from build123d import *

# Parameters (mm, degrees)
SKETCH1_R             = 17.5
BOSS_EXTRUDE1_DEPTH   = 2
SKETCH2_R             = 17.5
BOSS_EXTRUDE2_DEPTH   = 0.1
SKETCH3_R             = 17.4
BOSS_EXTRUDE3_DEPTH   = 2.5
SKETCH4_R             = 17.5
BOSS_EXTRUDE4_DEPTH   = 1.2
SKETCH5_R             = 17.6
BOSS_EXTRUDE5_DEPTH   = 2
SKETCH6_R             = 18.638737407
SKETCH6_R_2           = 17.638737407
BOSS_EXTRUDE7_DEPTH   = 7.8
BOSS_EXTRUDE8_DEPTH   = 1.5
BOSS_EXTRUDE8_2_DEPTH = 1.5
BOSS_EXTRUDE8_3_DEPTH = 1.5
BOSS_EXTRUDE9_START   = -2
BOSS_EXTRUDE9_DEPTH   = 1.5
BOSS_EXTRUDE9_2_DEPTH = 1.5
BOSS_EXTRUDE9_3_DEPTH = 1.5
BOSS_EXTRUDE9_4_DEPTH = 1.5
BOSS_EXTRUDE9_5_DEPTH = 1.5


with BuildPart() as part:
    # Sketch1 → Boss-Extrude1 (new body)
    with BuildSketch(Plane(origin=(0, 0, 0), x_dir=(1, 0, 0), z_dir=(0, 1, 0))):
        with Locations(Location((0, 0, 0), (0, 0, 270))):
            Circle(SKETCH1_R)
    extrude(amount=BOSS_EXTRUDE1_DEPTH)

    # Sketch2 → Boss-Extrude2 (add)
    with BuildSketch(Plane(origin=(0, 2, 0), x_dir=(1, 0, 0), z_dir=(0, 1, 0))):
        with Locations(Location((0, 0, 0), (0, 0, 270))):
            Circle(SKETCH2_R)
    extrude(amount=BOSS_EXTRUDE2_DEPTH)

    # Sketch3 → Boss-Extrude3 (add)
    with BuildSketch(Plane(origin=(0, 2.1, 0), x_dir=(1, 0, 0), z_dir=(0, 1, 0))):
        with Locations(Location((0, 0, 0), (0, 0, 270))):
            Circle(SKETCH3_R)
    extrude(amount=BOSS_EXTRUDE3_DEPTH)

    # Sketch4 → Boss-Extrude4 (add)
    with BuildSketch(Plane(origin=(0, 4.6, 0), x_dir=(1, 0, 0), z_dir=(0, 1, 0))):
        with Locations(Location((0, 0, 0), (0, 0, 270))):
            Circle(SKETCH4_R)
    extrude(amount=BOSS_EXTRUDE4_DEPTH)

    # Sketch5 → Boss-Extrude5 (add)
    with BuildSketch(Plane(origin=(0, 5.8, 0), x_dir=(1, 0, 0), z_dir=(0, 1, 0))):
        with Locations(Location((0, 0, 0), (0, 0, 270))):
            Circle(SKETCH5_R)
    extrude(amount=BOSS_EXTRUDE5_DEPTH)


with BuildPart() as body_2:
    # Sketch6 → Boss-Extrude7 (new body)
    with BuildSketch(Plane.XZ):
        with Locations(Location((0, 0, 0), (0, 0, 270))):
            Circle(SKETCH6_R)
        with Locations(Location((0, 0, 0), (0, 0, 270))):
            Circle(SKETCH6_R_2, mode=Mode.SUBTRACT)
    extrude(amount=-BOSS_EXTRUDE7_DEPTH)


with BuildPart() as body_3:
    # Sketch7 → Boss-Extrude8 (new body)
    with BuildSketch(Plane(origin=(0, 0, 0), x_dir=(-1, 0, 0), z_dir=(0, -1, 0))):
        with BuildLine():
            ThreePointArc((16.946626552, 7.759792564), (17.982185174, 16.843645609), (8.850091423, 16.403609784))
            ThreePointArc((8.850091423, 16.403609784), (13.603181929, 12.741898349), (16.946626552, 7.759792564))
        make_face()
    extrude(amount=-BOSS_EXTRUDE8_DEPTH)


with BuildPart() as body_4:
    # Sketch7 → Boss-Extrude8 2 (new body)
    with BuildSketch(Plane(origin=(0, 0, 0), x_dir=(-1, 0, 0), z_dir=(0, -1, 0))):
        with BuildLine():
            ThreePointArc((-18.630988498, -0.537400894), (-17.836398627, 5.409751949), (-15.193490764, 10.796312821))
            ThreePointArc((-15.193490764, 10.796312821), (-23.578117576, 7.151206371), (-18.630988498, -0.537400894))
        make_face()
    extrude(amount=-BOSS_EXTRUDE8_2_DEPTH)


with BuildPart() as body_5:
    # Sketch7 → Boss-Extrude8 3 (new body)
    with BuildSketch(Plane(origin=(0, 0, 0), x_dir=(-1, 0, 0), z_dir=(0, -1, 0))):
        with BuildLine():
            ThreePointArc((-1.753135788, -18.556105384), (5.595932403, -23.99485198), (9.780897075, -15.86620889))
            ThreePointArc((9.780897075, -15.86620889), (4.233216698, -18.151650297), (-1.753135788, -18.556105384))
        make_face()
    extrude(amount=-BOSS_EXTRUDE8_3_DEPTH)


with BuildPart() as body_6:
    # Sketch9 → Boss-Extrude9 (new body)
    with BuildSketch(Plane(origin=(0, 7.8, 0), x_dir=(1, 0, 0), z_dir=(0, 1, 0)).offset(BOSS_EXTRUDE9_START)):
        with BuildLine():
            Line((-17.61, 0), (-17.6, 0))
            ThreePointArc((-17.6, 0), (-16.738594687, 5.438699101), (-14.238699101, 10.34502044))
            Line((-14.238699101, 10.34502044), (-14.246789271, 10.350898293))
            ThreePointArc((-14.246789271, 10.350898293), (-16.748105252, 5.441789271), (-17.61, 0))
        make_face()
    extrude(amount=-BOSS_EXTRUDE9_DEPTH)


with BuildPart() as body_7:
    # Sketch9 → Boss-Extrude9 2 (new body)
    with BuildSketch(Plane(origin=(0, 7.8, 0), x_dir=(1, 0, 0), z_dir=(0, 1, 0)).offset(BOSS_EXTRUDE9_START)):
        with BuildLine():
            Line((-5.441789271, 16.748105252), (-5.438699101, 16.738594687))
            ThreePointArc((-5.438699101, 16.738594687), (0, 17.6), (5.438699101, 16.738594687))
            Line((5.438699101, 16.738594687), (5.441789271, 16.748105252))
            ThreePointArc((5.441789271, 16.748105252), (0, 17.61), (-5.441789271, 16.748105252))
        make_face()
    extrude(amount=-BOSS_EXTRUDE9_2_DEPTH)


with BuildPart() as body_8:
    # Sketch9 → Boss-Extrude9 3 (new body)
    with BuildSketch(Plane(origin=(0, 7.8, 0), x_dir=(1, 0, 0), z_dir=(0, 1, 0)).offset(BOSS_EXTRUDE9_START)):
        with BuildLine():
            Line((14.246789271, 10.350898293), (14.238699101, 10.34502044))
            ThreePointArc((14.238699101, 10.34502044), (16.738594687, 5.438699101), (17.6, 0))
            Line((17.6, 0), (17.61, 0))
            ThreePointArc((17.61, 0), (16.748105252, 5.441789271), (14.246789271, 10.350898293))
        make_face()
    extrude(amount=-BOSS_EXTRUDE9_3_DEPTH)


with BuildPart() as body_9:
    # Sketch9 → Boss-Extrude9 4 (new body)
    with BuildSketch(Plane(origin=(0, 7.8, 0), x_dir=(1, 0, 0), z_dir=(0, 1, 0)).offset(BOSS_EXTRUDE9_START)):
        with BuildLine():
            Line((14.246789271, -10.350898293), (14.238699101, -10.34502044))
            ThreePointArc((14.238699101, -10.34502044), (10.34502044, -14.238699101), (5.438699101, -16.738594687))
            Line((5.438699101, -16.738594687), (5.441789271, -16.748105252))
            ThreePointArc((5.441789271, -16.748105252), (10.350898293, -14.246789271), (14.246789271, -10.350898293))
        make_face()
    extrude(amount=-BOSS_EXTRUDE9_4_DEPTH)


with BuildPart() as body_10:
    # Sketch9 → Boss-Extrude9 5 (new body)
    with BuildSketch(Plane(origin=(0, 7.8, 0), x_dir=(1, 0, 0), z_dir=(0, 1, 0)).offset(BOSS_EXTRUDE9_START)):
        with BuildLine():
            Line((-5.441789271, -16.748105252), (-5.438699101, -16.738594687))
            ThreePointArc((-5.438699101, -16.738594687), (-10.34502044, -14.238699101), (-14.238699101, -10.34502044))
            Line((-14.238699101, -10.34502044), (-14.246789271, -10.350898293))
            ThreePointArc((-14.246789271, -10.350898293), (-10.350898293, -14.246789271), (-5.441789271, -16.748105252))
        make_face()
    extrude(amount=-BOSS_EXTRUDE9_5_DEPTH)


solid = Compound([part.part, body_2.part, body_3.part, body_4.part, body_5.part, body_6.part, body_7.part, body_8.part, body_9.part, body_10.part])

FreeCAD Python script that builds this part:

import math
import FreeCAD as App
import Part
import Sketcher
Q = App.Units.Quantity

doc = App.newDocument("Part")
body = doc.addObject("PartDesign::Body", "Body")

# Sketch on XZ plane
sketch1 = body.newObject("Sketcher::SketchObject", "Sketch")
sketch1.AttachmentSupport = (doc.getObject("XZ_Plane"), [""])
sketch1.MapMode = "FlatFace"
sketch1.addGeometry(Part.Circle(App.Vector(0, 0, 0), App.Vector(0, 0, 1), 18), False)
sketch1.addConstraint(Sketcher.Constraint("Coincident", 0, 3, -1, 1))
sketch1.addConstraint(Sketcher.Constraint("Diameter", 0, Q("35 mm")))
pad1 = body.newObject("PartDesign::Pad", "Pad")
pad1.Profile = sketch1
pad1.Length = 2
pad1.Reversed = True

# Sketch on XZ plane
sketch2 = body.newObject("Sketcher::SketchObject", "Sketch001")
sketch2.AttachmentSupport = (doc.getObject("XZ_Plane"), [""])
sketch2.MapMode = "FlatFace"
sketch2.AttachmentOffset = App.Placement(App.Vector(0, 0, -2), App.Rotation())
sketch2.addGeometry(Part.Circle(App.Vector(0, 0, 0), App.Vector(0, 0, 1), 18), False)
sketch2.addConstraint(Sketcher.Constraint("Coincident", 0, 3, -1, 1))
sketch2.addConstraint(Sketcher.Constraint("Diameter", 0, Q("35 mm")))
pad2 = body.newObject("PartDesign::Pad", "Pad001")
pad2.Profile = sketch2
pad2.Length = 0.1
pad2.Reversed = True

# Sketch on XZ plane
sketch3 = body.newObject("Sketcher::SketchObject", "Sketch002")
sketch3.AttachmentSupport = (doc.getObject("XZ_Plane"), [""])
sketch3.MapMode = "FlatFace"
sketch3.AttachmentOffset = App.Placement(App.Vector(0, 0, -2.1), App.Rotation())
sketch3.addGeometry(Part.Circle(App.Vector(0, 0, 0), App.Vector(0, 0, 1), 17), False)
sketch3.addConstraint(Sketcher.Constraint("Coincident", 0, 3, -1, 1))
sketch3.addConstraint(Sketcher.Constraint("Diameter", 0, Q("34.8 mm")))
pad3 = body.newObject("PartDesign::Pad", "Pad002")
pad3.Profile = sketch3
pad3.Length = 2.5
pad3.Reversed = True

# Sketch on XZ plane
sketch4 = body.newObject("Sketcher::SketchObject", "Sketch003")
sketch4.AttachmentSupport = (doc.getObject("XZ_Plane"), [""])
sketch4.MapMode = "FlatFace"
sketch4.AttachmentOffset = App.Placement(App.Vector(0, 0, -4.6), App.Rotation())
sketch4.addGeometry(Part.Circle(App.Vector(0, 0, 0), App.Vector(0, 0, 1), 18), False)
sketch4.addConstraint(Sketcher.Constraint("Coincident", 0, 3, -1, 1))
sketch4.addConstraint(Sketcher.Constraint("Diameter", 0, Q("35 mm")))
pad4 = body.newObject("PartDesign::Pad", "Pad003")
pad4.Profile = sketch4
pad4.Length = 1.2
pad4.Reversed = True

# Sketch on XZ plane
sketch5 = body.newObject("Sketcher::SketchObject", "Sketch004")
sketch5.AttachmentSupport = (doc.getObject("XZ_Plane"), [""])
sketch5.MapMode = "FlatFace"
sketch5.AttachmentOffset = App.Placement(App.Vector(0, 0, -5.8), App.Rotation())
sketch5.addGeometry(Part.Circle(App.Vector(0, 0, 0), App.Vector(0, 0, 1), 18), False)
sketch5.addConstraint(Sketcher.Constraint("Coincident", 0, 3, -1, 1))
sketch5.addConstraint(Sketcher.Constraint("Diameter", 0, Q("35.2 mm")))
pad5 = body.newObject("PartDesign::Pad", "Pad004")
pad5.Profile = sketch5
pad5.Length = 2
pad5.Reversed = True
body2 = doc.addObject("PartDesign::Body", "Body001")

# Sketch on XZ plane
sketch6 = body2.newObject("Sketcher::SketchObject", "Sketch005")
sketch6.AttachmentSupport = (doc.getObject("XZ_Plane001"), [""])
sketch6.MapMode = "FlatFace"
sketch6.addGeometry(Part.Circle(App.Vector(0, 0, 0), App.Vector(0, 0, 1), 19), False)
sketch6.addGeometry(Part.Circle(App.Vector(0, 0, 0), App.Vector(0, 0, 1), 18), False)
sketch6.addConstraint(Sketcher.Constraint("Coincident", 0, 3, -1, 1))
sketch6.addConstraint(Sketcher.Constraint("Coincident", 1, 3, -1, 1))
sketch6.addConstraint(Sketcher.Constraint("Diameter", 0, Q("37.277475 mm")))
sketch6.addConstraint(Sketcher.Constraint("Diameter", 1, Q("35.277475 mm")))
pad6 = body2.newObject("PartDesign::Pad", "Pad005")
pad6.Profile = sketch6
pad6.Length = 7.8
pad6.Reversed = True
body3 = doc.addObject("PartDesign::Body", "Body002")

# Sketch on XZ plane
sketch7 = body3.newObject("Sketcher::SketchObject", "Sketch006")
sketch7.AttachmentSupport = (doc.getObject("XZ_Plane002"), [""])
sketch7.MapMode = "FlatFace"
sketch7.addGeometry(Part.ArcOfCircle(Part.Circle(App.Vector(-14, -13, 0), App.Vector(0, 0, 1), 6), math.radians(124), math.radians(322)), False)
sketch7.addGeometry(Part.ArcOfCircle(Part.Circle(App.Vector(0, 0, 0), App.Vector(0, 0, 1), 19), math.radians(-155), math.radians(-118)), False)
sketch7.addConstraint(Sketcher.Constraint("Coincident", 0, 1, 1, 1))
sketch7.addConstraint(Sketcher.Constraint("Coincident", 1, 2, 0, 2))
sketch7.addConstraint(Sketcher.Constraint("Coincident", 1, 3, -1, 1))
sketch7.addConstraint(Sketcher.Constraint("Radius", 0, Q("6 mm")))
sketch7.addConstraint(Sketcher.Constraint("Radius", 1, Q("18.638737 mm")))
sketch7.addConstraint(Sketcher.Constraint("DistanceY", 0, 3, -1, 1, Q("12.741898 mm")))
sketch7.addConstraint(Sketcher.Constraint("DistanceX", 0, 3, -1, 1, Q("13.603182 mm")))
pad7 = body3.newObject("PartDesign::Pad", "Pad006")
pad7.Profile = sketch7
pad7.Length = 1.5
pad7.Reversed = True
body4 = doc.addObject("PartDesign::Body", "Body003")

# Sketch on XZ plane
sketch8 = body4.newObject("Sketcher::SketchObject", "Sketch007")
sketch8.AttachmentSupport = (doc.getObject("XZ_Plane003"), [""])
sketch8.MapMode = "FlatFace"
sketch8.addGeometry(Part.ArcOfCircle(Part.Circle(App.Vector(0, 0, 0), App.Vector(0, 0, 1), 19), math.radians(-35), math.radians(2)), False)
sketch8.addGeometry(Part.ArcOfCircle(Part.Circle(App.Vector(18, -5, 0), App.Vector(0, 0, 1), 6), math.radians(-116), math.radians(82)), False)
sketch8.addConstraint(Sketcher.Constraint("Coincident", 0, 1, 1, 1))
sketch8.addConstraint(Sketcher.Constraint("Coincident", 1, 2, 0, 2))
sketch8.addConstraint(Sketcher.Constraint("Coincident", 0, 3, -1, 1))
sketch8.addConstraint(Sketcher.Constraint("Radius", 1, Q("6 mm")))
sketch8.addConstraint(Sketcher.Constraint("Radius", 0, Q("18.638737 mm")))
sketch8.addConstraint(Sketcher.Constraint("DistanceX", -1, 1, 1, 3, Q("17.836399 mm")))
sketch8.addConstraint(Sketcher.Constraint("DistanceY", -1, 1, 1, 2, Q("0.537401 mm")))
pad8 = body4.newObject("PartDesign::Pad", "Pad007")
pad8.Profile = sketch8
pad8.Length = 1.5
pad8.Reversed = True
body5 = doc.addObject("PartDesign::Body", "Body004")

# Sketch on XZ plane
sketch9 = body5.newObject("Sketcher::SketchObject", "Sketch008")
sketch9.AttachmentSupport = (doc.getObject("XZ_Plane004"), [""])
sketch9.MapMode = "FlatFace"
sketch9.addGeometry(Part.ArcOfCircle(Part.Circle(App.Vector(-4, 18, 0), App.Vector(0, 0, 1), 6), math.radians(4), math.radians(202)), False)
sketch9.addGeometry(Part.ArcOfCircle(Part.Circle(App.Vector(0, 0, 0), App.Vector(0, 0, 1), 19), math.radians(85), math.radians(122)), False)
sketch9.addConstraint(Sketcher.Constraint("Coincident", 0, 1, 1, 1))
sketch9.addConstraint(Sketcher.Constraint("Coincident", 1, 2, 0, 2))
sketch9.addConstraint(Sketcher.Constraint("Coincident", 1, 3, -1, 1))
sketch9.addConstraint(Sketcher.Constraint("Radius", 0, Q("6 mm")))
sketch9.addConstraint(Sketcher.Constraint("Radius", 1, Q("18.638737 mm")))
sketch9.addConstraint(Sketcher.Constraint("DistanceY", -1, 1, 0, 3, Q("18.15165 mm")))
sketch9.addConstraint(Sketcher.Constraint("DistanceY", -1, 1, 1, 2, Q("15.866209 mm")))
pad9 = body5.newObject("PartDesign::Pad", "Pad008")
pad9.Profile = sketch9
pad9.Length = 1.5
pad9.Reversed = True
body6 = doc.addObject("PartDesign::Body", "Body005")

# Sketch on XZ plane
sketch10 = body6.newObject("Sketcher::SketchObject", "Sketch009")
sketch10.AttachmentSupport = (doc.getObject("XZ_Plane005"), [""])
sketch10.MapMode = "FlatFace"
sketch10.AttachmentOffset = App.Placement(App.Vector(0, 0, -5.8), App.Rotation())
sketch10.addGeometry(Part.LineSegment(App.Vector(-17.61, 0, 0), App.Vector(-17.6, 0, 0)), False)
sketch10.addGeometry(Part.ArcOfCircle(Part.Circle(App.Vector(0, 0, 0), App.Vector(0, 0, 1), 17.6), math.radians(180), math.radians(216)), False)
sketch10.addGeometry(Part.LineSegment(App.Vector(-14.239, -10.345, 0), App.Vector(-14.247, -10.351, 0)), False)
sketch10.addGeometry(Part.ArcOfCircle(Part.Circle(App.Vector(0, 0, 0), App.Vector(0, 0, 1), 17.61), math.radians(180), math.radians(216)), False)
sketch10.addConstraint(Sketcher.Constraint("Coincident", 0, 2, 1, 1))
sketch10.addConstraint(Sketcher.Constraint("Coincident", 1, 2, 2, 1))
sketch10.addConstraint(Sketcher.Constraint("Coincident", 2, 2, 3, 2))
sketch10.addConstraint(Sketcher.Constraint("Coincident", 3, 1, 0, 1))
sketch10.addConstraint(Sketcher.Constraint("Horizontal", 0))
sketch10.addConstraint(Sketcher.Constraint("Coincident", 1, 3, -1, 1))
sketch10.addConstraint(Sketcher.Constraint("Coincident", 3, 3, -1, 1))
sketch10.addConstraint(Sketcher.Constraint("PointOnObject", 0, 2, -1))
sketch10.addConstraint(Sketcher.Constraint("Radius", 1, Q("17.6 mm")))
sketch10.addConstraint(Sketcher.Constraint("Angle", 2, Q("-143.999998 deg")))
sketch10.addConstraint(Sketcher.Constraint("Radius", 3, Q("17.61 mm")))
sketch10.addConstraint(Sketcher.Constraint("DistanceX", 1, 2, -1, 1, Q("14.238699 mm")))
pad10 = body6.newObject("PartDesign::Pad", "Pad009")
pad10.Profile = sketch10
pad10.Length = 1.5
body7 = doc.addObject("PartDesign::Body", "Body006")

# Sketch on XZ plane
sketch11 = body7.newObject("Sketcher::SketchObject", "Sketch010")
sketch11.AttachmentSupport = (doc.getObject("XZ_Plane006"), [""])
sketch11.MapMode = "FlatFace"
sketch11.AttachmentOffset = App.Placement(App.Vector(0, 0, -5.8), App.Rotation())
sketch11.addGeometry(Part.LineSegment(App.Vector(-5.442, -16.748, 0), App.Vector(-5.439, -16.739, 0)), False)
sketch11.addGeometry(Part.ArcOfCircle(Part.Circle(App.Vector(0, 0, 0), App.Vector(0, 0, 1), 17.6), math.radians(-108), math.radians(-72)), False)
sketch11.addGeometry(Part.LineSegment(App.Vector(5.439, -16.739, 0), App.Vector(5.442, -16.748, 0)), False)
sketch11.addGeometry(Part.ArcOfCircle(Part.Circle(App.Vector(0, 0, 0), App.Vector(0, 0, 1), 17.61), math.radians(-108), math.radians(-72)), False)
sketch11.addConstraint(Sketcher.Constraint("Coincident", 0, 2, 1, 1))
sketch11.addConstraint(Sketcher.Constraint("Coincident", 1, 2, 2, 1))
sketch11.addConstraint(Sketcher.Constraint("Coincident", 2, 2, 3, 2))
sketch11.addConstraint(Sketcher.Constraint("Coincident", 3, 1, 0, 1))
sketch11.addConstraint(Sketcher.Constraint("Coincident", 1, 3, -1, 1))
sketch11.addConstraint(Sketcher.Constraint("Coincident", 3, 3, -1, 1))
sketch11.addConstraint(Sketcher.Constraint("Horizontal", 0, 2, 1, 2))
sketch11.addConstraint(Sketcher.Constraint("Horizontal", 2, 2, 3, 1))
sketch11.addConstraint(Sketcher.Constraint("Radius", 1, Q("17.6 mm")))
sketch11.addConstraint(Sketcher.Constraint("Angle", 0, Q("71.999999 deg")))
sketch11.addConstraint(Sketcher.Constraint("Radius", 3, Q("17.61 mm")))
sketch11.addConstraint(Sketcher.Constraint("DistanceX", 0, 2, -1, 1, Q("5.438699 mm")))
pad11 = body7.newObject("PartDesign::Pad", "Pad010")
pad11.Profile = sketch11
pad11.Length = 1.5
body8 = doc.addObject("PartDesign::Body", "Body007")

# Sketch on XZ plane
sketch12 = body8.newObject("Sketcher::SketchObject", "Sketch011")
sketch12.AttachmentSupport = (doc.getObject("XZ_Plane007"), [""])
sketch12.MapMode = "FlatFace"
sketch12.AttachmentOffset = App.Placement(App.Vector(0, 0, -5.8), App.Rotation())
sketch12.addGeometry(Part.LineSegment(App.Vector(14.247, -10.351, 0), App.Vector(14.239, -10.345, 0)), False)
sketch12.addGeometry(Part.ArcOfCircle(Part.Circle(App.Vector(0, 0, 0), App.Vector(0, 0, 1), 17.6), math.radians(-36), math.radians(0)), False)
sketch12.addGeometry(Part.LineSegment(App.Vector(17.6, 0, 0), App.Vector(17.61, 0, 0)), False)
sketch12.addGeometry(Part.ArcOfCircle(Part.Circle(App.Vector(0, 0, 0), App.Vector(0, 0, 1), 17.61), math.radians(-36), math.radians(0)), False)
sketch12.addConstraint(Sketcher.Constraint("Coincident", 0, 2, 1, 1))
sketch12.addConstraint(Sketcher.Constraint("Coincident", 1, 2, 2, 1))
sketch12.addConstraint(Sketcher.Constraint("Coincident", 2, 2, 3, 2))
sketch12.addConstraint(Sketcher.Constraint("Coincident", 3, 1, 0, 1))
sketch12.addConstraint(Sketcher.Constraint("Horizontal", 2))
sketch12.addConstraint(Sketcher.Constraint("Coincident", 1, 3, -1, 1))
sketch12.addConstraint(Sketcher.Constraint("Coincident", 3, 3, -1, 1))
sketch12.addConstraint(Sketcher.Constraint("PointOnObject", 1, 2, -1))
sketch12.addConstraint(Sketcher.Constraint("Radius", 1, Q("17.6 mm")))
sketch12.addConstraint(Sketcher.Constraint("Angle", 0, Q("143.999998 deg")))
sketch12.addConstraint(Sketcher.Constraint("Radius", 3, Q("17.61 mm")))
sketch12.addConstraint(Sketcher.Constraint("DistanceX", -1, 1, 0, 2, Q("14.238699 mm")))
pad12 = body8.newObject("PartDesign::Pad", "Pad011")
pad12.Profile = sketch12
pad12.Length = 1.5
body9 = doc.addObject("PartDesign::Body", "Body008")

# Sketch on XZ plane
sketch13 = body9.newObject("Sketcher::SketchObject", "Sketch012")
sketch13.AttachmentSupport = (doc.getObject("XZ_Plane008"), [""])
sketch13.MapMode = "FlatFace"
sketch13.AttachmentOffset = App.Placement(App.Vector(0, 0, -5.8), App.Rotation())
sketch13.addGeometry(Part.LineSegment(App.Vector(14.247, 10.351, 0), App.Vector(14.239, 10.345, 0)), False)
sketch13.addGeometry(Part.ArcOfCircle(Part.Circle(App.Vector(0, 0, 0), App.Vector(0, 0, 1), 17.6), math.radians(36), math.radians(72)), False)
sketch13.addGeometry(Part.LineSegment(App.Vector(5.439, 16.739, 0), App.Vector(5.442, 16.748, 0)), False)
sketch13.addGeometry(Part.ArcOfCircle(Part.Circle(App.Vector(0, 0, 0), App.Vector(0, 0, 1), 17.61), math.radians(36), math.radians(72)), False)
sketch13.addConstraint(Sketcher.Constraint("Coincident", 0, 2, 1, 1))
sketch13.addConstraint(Sketcher.Constraint("Coincident", 1, 2, 2, 1))
sketch13.addConstraint(Sketcher.Constraint("Coincident", 2, 2, 3, 2))
sketch13.addConstraint(Sketcher.Constraint("Coincident", 3, 1, 0, 1))
sketch13.addConstraint(Sketcher.Constraint("Coincident", 1, 3, -1, 1))
sketch13.addConstraint(Sketcher.Constraint("Coincident", 3, 3, -1, 1))
sketch13.addConstraint(Sketcher.Constraint("Radius", 1, Q("17.6 mm")))
sketch13.addConstraint(Sketcher.Constraint("Angle", 0, Q("-143.999998 deg")))
sketch13.addConstraint(Sketcher.Constraint("Angle", 2, Q("71.999999 deg")))
sketch13.addConstraint(Sketcher.Constraint("Radius", 3, Q("17.61 mm")))
sketch13.addConstraint(Sketcher.Constraint("DistanceX", 1, 2, 0, 2, Q("8.8 mm")))
sketch13.addConstraint(Sketcher.Constraint("DistanceX", -1, 1, 0, 2, Q("14.238699 mm")))
pad13 = body9.newObject("PartDesign::Pad", "Pad012")
pad13.Profile = sketch13
pad13.Length = 1.5
body10 = doc.addObject("PartDesign::Body", "Body009")

# Sketch on XZ plane
sketch14 = body10.newObject("Sketcher::SketchObject", "Sketch013")
sketch14.AttachmentSupport = (doc.getObject("XZ_Plane009"), [""])
sketch14.MapMode = "FlatFace"
sketch14.AttachmentOffset = App.Placement(App.Vector(0, 0, -5.8), App.Rotation())
sketch14.addGeometry(Part.LineSegment(App.Vector(-5.442, 16.748, 0), App.Vector(-5.439, 16.739, 0)), False)
sketch14.addGeometry(Part.ArcOfCircle(Part.Circle(App.Vector(0, 0, 0), App.Vector(0, 0, 1), 17.6), math.radians(108), math.radians(144)), False)
sketch14.addGeometry(Part.LineSegment(App.Vector(-14.239, 10.345, 0), App.Vector(-14.247, 10.351, 0)), False)
sketch14.addGeometry(Part.ArcOfCircle(Part.Circle(App.Vector(0, 0, 0), App.Vector(0, 0, 1), 17.61), math.radians(108), math.radians(144)), False)
sketch14.addConstraint(Sketcher.Constraint("Coincident", 0, 2, 1, 1))
sketch14.addConstraint(Sketcher.Constraint("Coincident", 1, 2, 2, 1))
sketch14.addConstraint(Sketcher.Constraint("Coincident", 2, 2, 3, 2))
sketch14.addConstraint(Sketcher.Constraint("Coincident", 3, 1, 0, 1))
sketch14.addConstraint(Sketcher.Constraint("Coincident", 1, 3, -1, 1))
sketch14.addConstraint(Sketcher.Constraint("Coincident", 3, 3, -1, 1))
sketch14.addConstraint(Sketcher.Constraint("Radius", 1, Q("17.6 mm")))
sketch14.addConstraint(Sketcher.Constraint("Angle", 0, Q("-71.999999 deg")))
sketch14.addConstraint(Sketcher.Constraint("Angle", 2, Q("143.999998 deg")))
sketch14.addConstraint(Sketcher.Constraint("Radius", 3, Q("17.61 mm")))
sketch14.addConstraint(Sketcher.Constraint("DistanceX", 1, 2, 0, 2, Q("8.8 mm")))
sketch14.addConstraint(Sketcher.Constraint("DistanceX", 0, 2, -1, 1, Q("5.438699 mm")))
pad14 = body10.newObject("PartDesign::Pad", "Pad013")
pad14.Profile = sketch14
pad14.Length = 1.5

doc.recompute()
